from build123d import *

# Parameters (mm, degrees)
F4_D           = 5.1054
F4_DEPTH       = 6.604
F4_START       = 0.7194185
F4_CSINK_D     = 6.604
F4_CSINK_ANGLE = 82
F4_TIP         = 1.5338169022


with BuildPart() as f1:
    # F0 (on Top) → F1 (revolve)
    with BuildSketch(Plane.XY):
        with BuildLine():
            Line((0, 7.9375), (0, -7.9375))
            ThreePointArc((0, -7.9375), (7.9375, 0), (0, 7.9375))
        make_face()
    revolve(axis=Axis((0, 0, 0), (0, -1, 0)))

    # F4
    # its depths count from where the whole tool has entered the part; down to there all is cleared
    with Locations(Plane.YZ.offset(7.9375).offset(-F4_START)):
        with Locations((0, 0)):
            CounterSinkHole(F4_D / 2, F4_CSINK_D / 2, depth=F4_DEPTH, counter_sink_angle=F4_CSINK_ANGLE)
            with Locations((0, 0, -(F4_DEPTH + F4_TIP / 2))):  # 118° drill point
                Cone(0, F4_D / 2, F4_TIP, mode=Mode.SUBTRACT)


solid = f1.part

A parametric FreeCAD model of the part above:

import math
import FreeCAD as App
import Part
import Sketcher
Q = App.Units.Quantity

doc = App.newDocument("Part")
body = doc.addObject("PartDesign::Body", "Body")

sketch1 = doc.addObject("Sketcher::SketchObject", "Sketch")
body.addObject(sketch1)
sketch1.AttachmentSupport = (doc.XY_Plane, [""])
sketch1.MapMode = "FlatFace"
sketch1.addGeometry([
    Part.LineSegment(App.Vector(0, 8, 0), App.Vector(0, -8, 0)),
    Part.ArcOfCircle(Part.Circle(App.Vector(0, 0, 0), App.Vector(0, 0, 1), 8), math.radians(-90), math.radians(90)),
], False)
sketch1.addConstraint([
    Sketcher.Constraint("Coincident", 0, 1, 1, 2),
    Sketcher.Constraint("Coincident", 1, 1, 0, 2),
    Sketcher.Constraint("Vertical", 0),
    Sketcher.Constraint("Coincident", 1, 3, -1, 1),
    Sketcher.Constraint("PointOnObject", 0, 1, -2),
    Sketcher.Constraint("Radius", 1, Q("0.3125 in")),
])
revolution = doc.addObject("PartDesign::Revolution", "Revolution")
body.addObject(revolution)
revolution.Profile = sketch1
revolution.ReferenceAxis = (sketch1, ["V_Axis"])
revolution.Angle = 360

sketch2 = doc.addObject("Sketcher::SketchObject", "Sketch001")
body.addObject(sketch2)
sketch2.AttachmentSupport = (doc.YZ_Plane, [""])
sketch2.MapMode = "FlatFace"
sketch2.AttachmentOffset = App.Placement(App.Vector(0, 0, 7.218082), App.Rotation())
sketch2.addGeometry(Part.Circle(App.Vector(0, 0, 0), App.Vector(0, 0, 1), 2.6), False)
sketch2.addConstraint([
    Sketcher.Constraint("Coincident", 0, 3, -1, 1),
    Sketcher.Constraint("Diameter", 0, Q("0.201 in")),
])
doc.recompute()
hole = doc.addObject("PartDesign::Hole", "Hole")
body.addObject(hole)
hole.Profile = sketch2
hole.ThreadType = "None"
hole.Diameter = Q("0.201 in")
hole.DepthType = "Dimension"
hole.Depth = Q("0.26 in")
hole.DrillPoint = "Angled"
hole.DrillPointAngle = 118
hole.HoleCutType = "Countersink"
hole.HoleCutDiameter = Q("0.26 in")
hole.HoleCutCountersinkAngle = 82

doc.recompute()
